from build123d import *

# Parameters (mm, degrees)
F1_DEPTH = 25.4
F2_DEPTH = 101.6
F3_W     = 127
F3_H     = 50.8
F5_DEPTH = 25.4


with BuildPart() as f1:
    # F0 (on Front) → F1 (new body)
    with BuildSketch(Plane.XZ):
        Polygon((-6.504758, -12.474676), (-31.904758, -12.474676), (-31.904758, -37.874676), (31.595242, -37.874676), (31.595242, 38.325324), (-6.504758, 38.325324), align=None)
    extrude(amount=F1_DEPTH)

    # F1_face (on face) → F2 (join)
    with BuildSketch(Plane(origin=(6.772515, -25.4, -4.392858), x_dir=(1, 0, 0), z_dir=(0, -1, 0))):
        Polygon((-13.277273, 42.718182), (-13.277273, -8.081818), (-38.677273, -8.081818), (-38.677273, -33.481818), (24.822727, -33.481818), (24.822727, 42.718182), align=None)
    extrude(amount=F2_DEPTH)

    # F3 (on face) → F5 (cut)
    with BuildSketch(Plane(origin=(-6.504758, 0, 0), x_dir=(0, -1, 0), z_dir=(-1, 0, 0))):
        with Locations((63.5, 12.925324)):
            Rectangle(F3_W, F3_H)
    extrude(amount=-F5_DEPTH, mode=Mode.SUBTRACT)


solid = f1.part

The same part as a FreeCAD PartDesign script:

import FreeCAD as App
import Part
import Sketcher
Q = App.Units.Quantity

doc = App.newDocument("Part")
body = doc.addObject("PartDesign::Body", "Body")

sketch1 = body.newObject("Sketcher::SketchObject", "Sketch")
sketch1.AttachmentSupport = (doc.getObject("XZ_Plane"), [""])
sketch1.MapMode = "FlatFace"
sketch1.addGeometry([
    Part.LineSegment(App.Vector(-7, -12, 0), App.Vector(-32, -12, 0)),
    Part.LineSegment(App.Vector(-32, -12, 0), App.Vector(-32, -38, 0)),
    Part.LineSegment(App.Vector(-32, -38, 0), App.Vector(32, -38, 0)),
    Part.LineSegment(App.Vector(32, -38, 0), App.Vector(32, 38, 0)),
    Part.LineSegment(App.Vector(32, 38, 0), App.Vector(-7, 38, 0)),
    Part.LineSegment(App.Vector(-7, 38, 0), App.Vector(-7, -12, 0)),
], False)
sketch1.addConstraint([
    Sketcher.Constraint("Coincident", 0, 2, 1, 1),
    Sketcher.Constraint("Coincident", 1, 2, 2, 1),
    Sketcher.Constraint("Coincident", 2, 2, 3, 1),
    Sketcher.Constraint("Coincident", 3, 2, 4, 1),
    Sketcher.Constraint("Coincident", 4, 2, 5, 1),
    Sketcher.Constraint("Coincident", 5, 2, 0, 1),
    Sketcher.Constraint("Horizontal", 0),
    Sketcher.Constraint("Vertical", 1),
    Sketcher.Constraint("Horizontal", 2),
    Sketcher.Constraint("Vertical", 3),
    Sketcher.Constraint("Horizontal", 4),
    Sketcher.Constraint("Vertical", 5),
    Sketcher.Constraint("Equal", 0, 1),
    Sketcher.Constraint("DistanceX", 0, 2, 0, 1, Q("1 in")),
    Sketcher.Constraint("DistanceY", 3, 1, 3, 2, Q("3 in")),
    Sketcher.Constraint("DistanceX", 2, 1, 2, 2, Q("2.5 in")),
    Sketcher.Constraint("DistanceX", 0, 2, -1, 1, Q("31.904758 mm")),
    Sketcher.Constraint("DistanceY", 0, 2, -1, 1, Q("12.474676 mm")),
])
pad1 = body.newObject("PartDesign::Pad", "Pad")
pad1.Profile = sketch1
pad1.Length = Q("1 in")

sketch2 = body.newObject("Sketcher::SketchObject", "Sketch001")
sketch2.AttachmentSupport = (doc.getObject("XZ_Plane"), [""])
sketch2.MapMode = "FlatFace"
sketch2.AttachmentOffset = App.Placement(App.Vector(0, 0, 1 * 25.4), App.Rotation())
sketch2.addGeometry([
    Part.LineSegment(App.Vector(-7, 38, 0), App.Vector(-7, -12, 0)),
    Part.LineSegment(App.Vector(-7, -12, 0), App.Vector(-32, -12, 0)),
    Part.LineSegment(App.Vector(-32, -12, 0), App.Vector(-32, -38, 0)),
    Part.LineSegment(App.Vector(-32, -38, 0), App.Vector(32, -38, 0)),
    Part.LineSegment(App.Vector(32, -38, 0), App.Vector(32, 38, 0)),
    Part.LineSegment(App.Vector(32, 38, 0), App.Vector(-7, 38, 0)),
], False)
sketch2.addConstraint([
    Sketcher.Constraint("Coincident", 0, 2, 1, 1),
    Sketcher.Constraint("Coincident", 1, 2, 2, 1),
    Sketcher.Constraint("Coincident", 2, 2, 3, 1),
    Sketcher.Constraint("Coincident", 3, 2, 4, 1),
    Sketcher.Constraint("Coincident", 4, 2, 5, 1),
    Sketcher.Constraint("Coincident", 5, 2, 0, 1),
    Sketcher.Constraint("Vertical", 0),
    Sketcher.Constraint("Horizontal", 1),
    Sketcher.Constraint("Vertical", 2),
    Sketcher.Constraint("Horizontal", 3),
    Sketcher.Constraint("Vertical", 4),
    Sketcher.Constraint("Horizontal", 5),
    Sketcher.Constraint("Equal", 1, 2),
    Sketcher.Constraint("DistanceX", 1, 2, 1, 1, Q("1 in")),
    Sketcher.Constraint("DistanceY", 0, 2, 0, 1, Q("2 in")),
    Sketcher.Constraint("DistanceX", 3, 1, 3, 2, Q("2.5 in")),
    Sketcher.Constraint("DistanceX", 1, 2, -1, 1, Q("31.904758 mm")),
    Sketcher.Constraint("DistanceY", 0, 2, -1, 1, Q("12.474676 mm")),
])
pad2 = body.newObject("PartDesign::Pad", "Pad001")
pad2.Profile = sketch2
pad2.Length = Q("4 in")

sketch3 = body.newObject("Sketcher::SketchObject", "Sketch002")
sketch3.AttachmentSupport = (doc.getObject("YZ_Plane"), [""])
sketch3.MapMode = "FlatFace"
sketch3.AttachmentOffset = App.Placement(App.Vector(0, 0, -6.504758), App.Rotation())
sketch3.addGeometry([
    Part.LineSegment(App.Vector(0, 38, 0), App.Vector(0, -12, 0)),
    Part.LineSegment(App.Vector(0, -12, 0), App.Vector(-127, -12, 0)),
    Part.LineSegment(App.Vector(-127, -12, 0), App.Vector(-127, 38, 0)),
    Part.LineSegment(App.Vector(-127, 38, 0), App.Vector(0, 38, 0)),
], False)
sketch3.addConstraint([
    Sketcher.Constraint("Coincident", 0, 2, 1, 1),
    Sketcher.Constraint("Coincident", 1, 2, 2, 1),
    Sketcher.Constraint("Coincident", 2, 2, 3, 1),
    Sketcher.Constraint("Coincident", 3, 2, 0, 1),
    Sketcher.Constraint("Vertical", 0),
    Sketcher.Constraint("Horizontal", 1),
    Sketcher.Constraint("Vertical", 2),
    Sketcher.Constraint("Horizontal", 3),
    Sketcher.Constraint("PointOnObject", 0, 2, -2),
    Sketcher.Constraint("DistanceX", 1, 2, 1, 1, Q("5 in")),
    Sketcher.Constraint("DistanceY", 0, 2, 0, 1, Q("2 in")),
    Sketcher.Constraint("DistanceY", 0, 2, -1, 1, Q("12.474676 mm")),
])
pocket1 = body.newObject("PartDesign::Pocket", "Pocket")
pocket1.Profile = sketch3
pocket1.Length = Q("1 in")
pocket1.Reversed = True

doc.recompute()
